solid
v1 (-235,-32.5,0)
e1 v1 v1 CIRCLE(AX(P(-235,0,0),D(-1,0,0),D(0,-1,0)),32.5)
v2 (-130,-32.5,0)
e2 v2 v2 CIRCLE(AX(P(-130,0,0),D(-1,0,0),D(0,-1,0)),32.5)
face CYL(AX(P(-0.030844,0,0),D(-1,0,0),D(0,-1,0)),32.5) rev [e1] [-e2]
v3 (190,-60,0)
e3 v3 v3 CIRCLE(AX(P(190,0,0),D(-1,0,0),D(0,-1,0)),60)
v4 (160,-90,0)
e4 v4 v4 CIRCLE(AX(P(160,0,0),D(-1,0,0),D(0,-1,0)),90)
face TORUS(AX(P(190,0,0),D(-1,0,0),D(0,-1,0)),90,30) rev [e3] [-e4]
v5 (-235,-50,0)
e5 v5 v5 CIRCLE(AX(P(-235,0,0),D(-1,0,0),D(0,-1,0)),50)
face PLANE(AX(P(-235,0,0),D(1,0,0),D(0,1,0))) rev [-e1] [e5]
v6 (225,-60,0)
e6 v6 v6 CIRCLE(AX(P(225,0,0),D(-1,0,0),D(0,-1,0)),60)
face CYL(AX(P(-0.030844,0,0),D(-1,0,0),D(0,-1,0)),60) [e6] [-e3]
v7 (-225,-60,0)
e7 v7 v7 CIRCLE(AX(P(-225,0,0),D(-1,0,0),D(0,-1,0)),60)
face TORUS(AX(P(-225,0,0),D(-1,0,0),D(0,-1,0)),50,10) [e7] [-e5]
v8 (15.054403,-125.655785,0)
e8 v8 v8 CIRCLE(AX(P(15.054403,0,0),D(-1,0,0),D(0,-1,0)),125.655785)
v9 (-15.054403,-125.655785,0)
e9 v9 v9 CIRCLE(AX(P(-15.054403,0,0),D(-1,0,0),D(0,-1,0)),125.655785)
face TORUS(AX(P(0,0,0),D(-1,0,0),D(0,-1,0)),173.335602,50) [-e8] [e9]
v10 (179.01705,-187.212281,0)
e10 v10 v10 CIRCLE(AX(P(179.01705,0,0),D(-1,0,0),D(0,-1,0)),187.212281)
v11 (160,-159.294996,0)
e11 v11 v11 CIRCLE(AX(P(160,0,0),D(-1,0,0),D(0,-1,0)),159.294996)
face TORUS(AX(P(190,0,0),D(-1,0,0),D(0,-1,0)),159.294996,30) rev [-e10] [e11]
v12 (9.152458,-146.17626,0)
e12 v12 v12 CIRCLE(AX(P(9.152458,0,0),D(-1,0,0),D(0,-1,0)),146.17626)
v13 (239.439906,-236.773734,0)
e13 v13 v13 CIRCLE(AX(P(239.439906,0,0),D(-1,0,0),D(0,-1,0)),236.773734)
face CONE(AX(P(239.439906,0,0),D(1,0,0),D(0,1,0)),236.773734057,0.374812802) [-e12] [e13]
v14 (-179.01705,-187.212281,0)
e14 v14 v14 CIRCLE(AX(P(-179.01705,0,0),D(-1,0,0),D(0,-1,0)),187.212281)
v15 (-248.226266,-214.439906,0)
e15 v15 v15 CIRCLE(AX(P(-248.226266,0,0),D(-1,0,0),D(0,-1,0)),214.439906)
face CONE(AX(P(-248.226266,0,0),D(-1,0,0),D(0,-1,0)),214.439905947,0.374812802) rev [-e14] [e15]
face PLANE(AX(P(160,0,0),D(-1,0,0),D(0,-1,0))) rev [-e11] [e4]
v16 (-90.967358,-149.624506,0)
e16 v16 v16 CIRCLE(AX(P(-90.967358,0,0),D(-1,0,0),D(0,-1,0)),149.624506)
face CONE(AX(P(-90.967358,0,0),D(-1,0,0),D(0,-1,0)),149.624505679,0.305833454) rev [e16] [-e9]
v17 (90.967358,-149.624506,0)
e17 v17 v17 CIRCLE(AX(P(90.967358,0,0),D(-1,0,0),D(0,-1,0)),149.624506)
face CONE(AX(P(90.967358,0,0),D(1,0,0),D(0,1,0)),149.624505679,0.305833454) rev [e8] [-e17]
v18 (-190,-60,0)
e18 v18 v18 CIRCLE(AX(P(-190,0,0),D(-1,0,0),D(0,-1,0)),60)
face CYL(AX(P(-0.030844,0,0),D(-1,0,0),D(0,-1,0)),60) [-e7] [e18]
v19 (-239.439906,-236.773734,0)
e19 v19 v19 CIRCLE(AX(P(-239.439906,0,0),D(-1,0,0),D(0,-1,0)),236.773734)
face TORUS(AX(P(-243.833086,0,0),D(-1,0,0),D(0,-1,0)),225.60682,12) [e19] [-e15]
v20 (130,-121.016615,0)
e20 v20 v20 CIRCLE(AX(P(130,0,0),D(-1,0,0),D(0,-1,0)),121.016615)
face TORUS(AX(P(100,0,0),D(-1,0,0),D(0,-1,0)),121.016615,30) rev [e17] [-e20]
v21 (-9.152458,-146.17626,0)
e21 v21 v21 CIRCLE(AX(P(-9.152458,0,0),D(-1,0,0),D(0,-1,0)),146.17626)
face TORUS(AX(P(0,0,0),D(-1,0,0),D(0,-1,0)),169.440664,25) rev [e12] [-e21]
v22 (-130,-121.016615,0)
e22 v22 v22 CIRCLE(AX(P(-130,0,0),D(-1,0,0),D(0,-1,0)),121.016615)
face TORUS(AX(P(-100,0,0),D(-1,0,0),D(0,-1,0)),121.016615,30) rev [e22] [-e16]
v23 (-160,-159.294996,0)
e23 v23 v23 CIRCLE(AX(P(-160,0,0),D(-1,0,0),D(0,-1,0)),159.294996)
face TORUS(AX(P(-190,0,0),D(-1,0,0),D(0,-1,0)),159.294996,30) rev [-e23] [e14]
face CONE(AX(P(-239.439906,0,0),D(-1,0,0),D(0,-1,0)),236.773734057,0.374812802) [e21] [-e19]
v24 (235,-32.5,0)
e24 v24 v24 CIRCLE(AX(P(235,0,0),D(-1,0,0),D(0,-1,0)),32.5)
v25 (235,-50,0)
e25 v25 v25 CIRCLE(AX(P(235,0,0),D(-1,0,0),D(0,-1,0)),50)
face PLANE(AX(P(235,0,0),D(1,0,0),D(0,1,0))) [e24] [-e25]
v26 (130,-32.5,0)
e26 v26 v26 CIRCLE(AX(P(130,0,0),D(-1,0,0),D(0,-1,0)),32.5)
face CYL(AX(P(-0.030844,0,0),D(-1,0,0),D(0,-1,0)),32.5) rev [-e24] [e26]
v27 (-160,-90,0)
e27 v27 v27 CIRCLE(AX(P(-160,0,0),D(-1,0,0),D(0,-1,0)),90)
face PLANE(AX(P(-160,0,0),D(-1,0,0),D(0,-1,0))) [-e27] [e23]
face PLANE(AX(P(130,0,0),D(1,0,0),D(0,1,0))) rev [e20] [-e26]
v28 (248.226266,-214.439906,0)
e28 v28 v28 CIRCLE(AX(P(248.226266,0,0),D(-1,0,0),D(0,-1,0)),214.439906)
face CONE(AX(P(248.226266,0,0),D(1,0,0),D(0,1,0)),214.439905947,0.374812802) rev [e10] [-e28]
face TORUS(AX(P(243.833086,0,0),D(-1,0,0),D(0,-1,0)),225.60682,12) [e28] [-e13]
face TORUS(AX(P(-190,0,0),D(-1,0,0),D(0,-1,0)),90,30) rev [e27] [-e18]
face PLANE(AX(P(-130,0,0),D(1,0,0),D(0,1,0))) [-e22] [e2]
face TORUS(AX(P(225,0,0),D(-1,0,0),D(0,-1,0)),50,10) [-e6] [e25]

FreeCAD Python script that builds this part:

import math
import FreeCAD as App
import Part
import Sketcher

doc = App.newDocument("Part")
params = doc.addObject("Spreadsheet::Sheet", "Params")
for row, (alias, value) in enumerate([
    ("sketch1_radius", "25 mm"),
    ("sketch1_radius2", "12 mm"),
    ("sketch1_radius3", "30 mm"),
    ("sketch1_radius4", "10 mm"),
    ("sketch1_radius5", "50 mm"),
    ("revolution_angle", "360 deg"),
], start=1):
    params.set(f"A{row}", alias)
    params.set(f"B{row}", "=" + value)
    params.setAlias(f"B{row}", alias)

body = doc.addObject("PartDesign::Body", "Body")

# Sketch on XY plane
sketch1 = body.newObject("Sketcher::SketchObject", "Sketch")
sketch1.AttachmentSupport = (doc.getObject("XY_Plane"), [""])
sketch1.MapMode = "FlatFace"
sketch1.addGeometry(Part.ArcOfCircle(Part.Circle(App.Vector(0, 169, 0), App.Vector(0, 0, 1), 25), math.radians(-111), math.radians(-69)), False)
sketch1.addGeometry(Part.LineSegment(App.Vector(-9, 146, 0), App.Vector(-239, 237, 0)), False)
sketch1.addGeometry(Part.ArcOfCircle(Part.Circle(App.Vector(-244, 226, 0), App.Vector(0, 0, 1), 12), math.radians(69), math.radians(249)), False)
sketch1.addGeometry(Part.LineSegment(App.Vector(-248, 214, 0), App.Vector(-179, 187, 0)), False)
sketch1.addGeometry(Part.ArcOfCircle(Part.Circle(App.Vector(-190, 159, 0), App.Vector(0, 0, 1), 30), math.radians(0), math.radians(69)), False)
sketch1.addGeometry(Part.LineSegment(App.Vector(-160, 159, 0), App.Vector(-160, 90, 0)), False)
sketch1.addGeometry(Part.ArcOfCircle(Part.Circle(App.Vector(-190, 90, 0), App.Vector(0, 0, 1), 30), math.radians(-90), math.radians(0)), False)
sketch1.addGeometry(Part.LineSegment(App.Vector(-190, 60, 0), App.Vector(-225, 60, 0)), False)
sketch1.addGeometry(Part.ArcOfCircle(Part.Circle(App.Vector(-225, 50, 0), App.Vector(0, 0, 1), 10), math.radians(90), math.radians(180)), False)
sketch1.addGeometry(Part.LineSegment(App.Vector(-235, 50, 0), App.Vector(-235, 32, 0)), False)
sketch1.addGeometry(Part.LineSegment(App.Vector(-235, 32, 0), App.Vector(-130, 32, 0)), False)
sketch1.addGeometry(Part.LineSegment(App.Vector(-130, 32, 0), App.Vector(-130, 121, 0)), False)
sketch1.addGeometry(Part.ArcOfCircle(Part.Circle(App.Vector(-100, 121, 0), App.Vector(0, 0, 1), 30), math.radians(72), math.radians(180)), False)
sketch1.addGeometry(Part.LineSegment(App.Vector(-91, 150, 0), App.Vector(-15, 126, 0)), False)
sketch1.addGeometry(Part.ArcOfCircle(Part.Circle(App.Vector(0, 173, 0), App.Vector(0, 0, 1), 50), math.radians(-108), math.radians(-72)), False)
sketch1.addGeometry(Part.LineSegment(App.Vector(15, 126, 0), App.Vector(91, 150, 0)), False)
sketch1.addGeometry(Part.ArcOfCircle(Part.Circle(App.Vector(100, 121, 0), App.Vector(0, 0, 1), 30), math.radians(0), math.radians(108)), False)
sketch1.addGeometry(Part.LineSegment(App.Vector(130, 121, 0), App.Vector(130, 32, 0)), False)
sketch1.addGeometry(Part.LineSegment(App.Vector(130, 32, 0), App.Vector(235, 32, 0)), False)
sketch1.addGeometry(Part.LineSegment(App.Vector(235, 32, 0), App.Vector(235, 50, 0)), False)
sketch1.addGeometry(Part.ArcOfCircle(Part.Circle(App.Vector(225, 50, 0), App.Vector(0, 0, 1), 10), math.radians(0), math.radians(90)), False)
sketch1.addGeometry(Part.LineSegment(App.Vector(225, 60, 0), App.Vector(190, 60, 0)), False)
sketch1.addGeometry(Part.ArcOfCircle(Part.Circle(App.Vector(190, 90, 0), App.Vector(0, 0, 1), 30), math.radians(180), math.radians(270)), False)
sketch1.addGeometry(Part.LineSegment(App.Vector(160, 90, 0), App.Vector(160, 159, 0)), False)
sketch1.addGeometry(Part.ArcOfCircle(Part.Circle(App.Vector(190, 159, 0), App.Vector(0, 0, 1), 30), math.radians(111), math.radians(180)), False)
sketch1.addGeometry(Part.LineSegment(App.Vector(179, 187, 0), App.Vector(248, 214, 0)), False)
sketch1.addGeometry(Part.ArcOfCircle(Part.Circle(App.Vector(244, 226, 0), App.Vector(0, 0, 1), 12), math.radians(-69), math.radians(111)), False)
sketch1.addGeometry(Part.LineSegment(App.Vector(239, 237, 0), App.Vector(9, 146, 0)), False)
sketch1.addConstraint(Sketcher.Constraint("Tangent", 0, 1, 1, 1))
sketch1.addConstraint(Sketcher.Constraint("Tangent", 1, 2, 2, 1))
sketch1.addConstraint(Sketcher.Constraint("Tangent", 2, 2, 3, 1))
sketch1.addConstraint(Sketcher.Constraint("Tangent", 3, 2, 4, 2))
sketch1.addConstraint(Sketcher.Constraint("Tangent", 4, 1, 5, 1))
sketch1.addConstraint(Sketcher.Constraint("Tangent", 5, 2, 6, 2))
sketch1.addConstraint(Sketcher.Constraint("Tangent", 6, 1, 7, 1))
sketch1.addConstraint(Sketcher.Constraint("Tangent", 7, 2, 8, 1))
sketch1.addConstraint(Sketcher.Constraint("Tangent", 8, 2, 9, 1))
sketch1.addConstraint(Sketcher.Constraint("Coincident", 9, 2, 10, 1))
sketch1.addConstraint(Sketcher.Constraint("Coincident", 10, 2, 11, 1))
sketch1.addConstraint(Sketcher.Constraint("Tangent", 11, 2, 12, 2))
sketch1.addConstraint(Sketcher.Constraint("Tangent", 12, 1, 13, 1))
sketch1.addConstraint(Sketcher.Constraint("Tangent", 13, 2, 14, 1))
sketch1.addConstraint(Sketcher.Constraint("Tangent", 14, 2, 15, 1))
sketch1.addConstraint(Sketcher.Constraint("Tangent", 15, 2, 16, 2))
sketch1.addConstraint(Sketcher.Constraint("Tangent", 16, 1, 17, 1))
sketch1.addConstraint(Sketcher.Constraint("Coincident", 17, 2, 18, 1))
sketch1.addConstraint(Sketcher.Constraint("Coincident", 18, 2, 19, 1))
sketch1.addConstraint(Sketcher.Constraint("Tangent", 19, 2, 20, 1))
sketch1.addConstraint(Sketcher.Constraint("Tangent", 20, 2, 21, 1))
sketch1.addConstraint(Sketcher.Constraint("Tangent", 21, 2, 22, 2))
sketch1.addConstraint(Sketcher.Constraint("Tangent", 22, 1, 23, 1))
sketch1.addConstraint(Sketcher.Constraint("Tangent", 23, 2, 24, 2))
sketch1.addConstraint(Sketcher.Constraint("Tangent", 24, 1, 25, 1))
sketch1.addConstraint(Sketcher.Constraint("Tangent", 25, 2, 26, 1))
sketch1.addConstraint(Sketcher.Constraint("Tangent", 26, 2, 27, 1))
sketch1.addConstraint(Sketcher.Constraint("Tangent", 27, 2, 0, 2))
sketch1.addConstraint(Sketcher.Constraint("Vertical", 5))
sketch1.addConstraint(Sketcher.Constraint("Horizontal", 7))
sketch1.addConstraint(Sketcher.Constraint("Vertical", 9))
sketch1.addConstraint(Sketcher.Constraint("Horizontal", 10))
sketch1.addConstraint(Sketcher.Constraint("Vertical", 11))
sketch1.addConstraint(Sketcher.Constraint("Vertical", 17))
sketch1.addConstraint(Sketcher.Constraint("Horizontal", 18))
sketch1.addConstraint(Sketcher.Constraint("Vertical", 19))
sketch1.addConstraint(Sketcher.Constraint("Horizontal", 21))
sketch1.addConstraint(Sketcher.Constraint("Vertical", 23))
sketch1.addConstraint(Sketcher.Constraint("Equal", 4, 6))
sketch1.addConstraint(Sketcher.Constraint("Equal", 6, 12))
sketch1.addConstraint(Sketcher.Constraint("Equal", 12, 16))
sketch1.addConstraint(Sketcher.Constraint("Equal", 8, 20))
sketch1.addConstraint(Sketcher.Constraint("Equal", 16, 22))
sketch1.addConstraint(Sketcher.Constraint("Equal", 22, 24))
sketch1.addConstraint(Sketcher.Constraint("Equal", 2, 26))
sketch1.addConstraint(Sketcher.Constraint("Symmetric", 12, 3, 16, 3, -2))
sketch1.addConstraint(Sketcher.Constraint("Symmetric", 8, 3, 20, 3, -2))
sketch1.addConstraint(Sketcher.Constraint("Symmetric", 4, 3, 24, 3, -2))
sketch1.addConstraint(Sketcher.Constraint("Symmetric", 2, 3, 26, 3, -2))
sketch1.addConstraint(Sketcher.Constraint("PointOnObject", 0, 3, -2))
sketch1.addConstraint(Sketcher.Constraint("PointOnObject", 14, 3, -2))
sketch1.addConstraint(Sketcher.Constraint("Parallel", 1, 3))
sketch1.addConstraint(Sketcher.Constraint("Horizontal", 10, 2, 17, 2))
sketch1.addConstraint(Sketcher.Constraint("Radius", 0, 25.0))
sketch1.addConstraint(Sketcher.Constraint("Radius", 2, 12.0))
sketch1.addConstraint(Sketcher.Constraint("Radius", 4, 30.0))
sketch1.addConstraint(Sketcher.Constraint("Radius", 8, 10.0))
sketch1.addConstraint(Sketcher.Constraint("Radius", 14, 50.0))
sketch1.addConstraint(Sketcher.Constraint("DistanceX", 7, 2, 7, 1, 35.0))
sketch1.addConstraint(Sketcher.Constraint("DistanceX", 10, 1, 10, 2, 105.0))
sketch1.addConstraint(Sketcher.Constraint("DistanceY", 9, 2, 9, 1, 17.5))
sketch1.addConstraint(Sketcher.Constraint("DistanceX", 4, 3, -1, 1, 190.0))
sketch1.addConstraint(Sketcher.Constraint("DistanceY", -1, 1, 6, 3, 90.0))
sketch1.addConstraint(Sketcher.Constraint("DistanceY", -1, 1, 14, 3, 173.335602))
sketch1.addConstraint(Sketcher.Constraint("DistanceX", 12, 1, 0, 1, 81.8149))
sketch1.addConstraint(Sketcher.Constraint("Distance", 13, 79.607012))
sketch1.addConstraint(Sketcher.Constraint("DistanceY", 5, 2, 5, 1, 69.294996))
sketch1.addConstraint(Sketcher.Constraint("DistanceY", -1, 1, 2, 3, 225.60682))
sketch1.setExpression("Constraints[53]", "Params.sketch1_radius")
sketch1.setExpression("Constraints[54]", "Params.sketch1_radius2")
sketch1.setExpression("Constraints[55]", "Params.sketch1_radius3")
sketch1.setExpression("Constraints[56]", "Params.sketch1_radius4")
sketch1.setExpression("Constraints[57]", "Params.sketch1_radius5")
revolution = body.newObject("PartDesign::Revolution", "Revolution")
revolution.Profile = sketch1
revolution.ReferenceAxis = (sketch1, ["H_Axis"])
revolution.setExpression("Angle", "Params.revolution_angle")

doc.recompute()
